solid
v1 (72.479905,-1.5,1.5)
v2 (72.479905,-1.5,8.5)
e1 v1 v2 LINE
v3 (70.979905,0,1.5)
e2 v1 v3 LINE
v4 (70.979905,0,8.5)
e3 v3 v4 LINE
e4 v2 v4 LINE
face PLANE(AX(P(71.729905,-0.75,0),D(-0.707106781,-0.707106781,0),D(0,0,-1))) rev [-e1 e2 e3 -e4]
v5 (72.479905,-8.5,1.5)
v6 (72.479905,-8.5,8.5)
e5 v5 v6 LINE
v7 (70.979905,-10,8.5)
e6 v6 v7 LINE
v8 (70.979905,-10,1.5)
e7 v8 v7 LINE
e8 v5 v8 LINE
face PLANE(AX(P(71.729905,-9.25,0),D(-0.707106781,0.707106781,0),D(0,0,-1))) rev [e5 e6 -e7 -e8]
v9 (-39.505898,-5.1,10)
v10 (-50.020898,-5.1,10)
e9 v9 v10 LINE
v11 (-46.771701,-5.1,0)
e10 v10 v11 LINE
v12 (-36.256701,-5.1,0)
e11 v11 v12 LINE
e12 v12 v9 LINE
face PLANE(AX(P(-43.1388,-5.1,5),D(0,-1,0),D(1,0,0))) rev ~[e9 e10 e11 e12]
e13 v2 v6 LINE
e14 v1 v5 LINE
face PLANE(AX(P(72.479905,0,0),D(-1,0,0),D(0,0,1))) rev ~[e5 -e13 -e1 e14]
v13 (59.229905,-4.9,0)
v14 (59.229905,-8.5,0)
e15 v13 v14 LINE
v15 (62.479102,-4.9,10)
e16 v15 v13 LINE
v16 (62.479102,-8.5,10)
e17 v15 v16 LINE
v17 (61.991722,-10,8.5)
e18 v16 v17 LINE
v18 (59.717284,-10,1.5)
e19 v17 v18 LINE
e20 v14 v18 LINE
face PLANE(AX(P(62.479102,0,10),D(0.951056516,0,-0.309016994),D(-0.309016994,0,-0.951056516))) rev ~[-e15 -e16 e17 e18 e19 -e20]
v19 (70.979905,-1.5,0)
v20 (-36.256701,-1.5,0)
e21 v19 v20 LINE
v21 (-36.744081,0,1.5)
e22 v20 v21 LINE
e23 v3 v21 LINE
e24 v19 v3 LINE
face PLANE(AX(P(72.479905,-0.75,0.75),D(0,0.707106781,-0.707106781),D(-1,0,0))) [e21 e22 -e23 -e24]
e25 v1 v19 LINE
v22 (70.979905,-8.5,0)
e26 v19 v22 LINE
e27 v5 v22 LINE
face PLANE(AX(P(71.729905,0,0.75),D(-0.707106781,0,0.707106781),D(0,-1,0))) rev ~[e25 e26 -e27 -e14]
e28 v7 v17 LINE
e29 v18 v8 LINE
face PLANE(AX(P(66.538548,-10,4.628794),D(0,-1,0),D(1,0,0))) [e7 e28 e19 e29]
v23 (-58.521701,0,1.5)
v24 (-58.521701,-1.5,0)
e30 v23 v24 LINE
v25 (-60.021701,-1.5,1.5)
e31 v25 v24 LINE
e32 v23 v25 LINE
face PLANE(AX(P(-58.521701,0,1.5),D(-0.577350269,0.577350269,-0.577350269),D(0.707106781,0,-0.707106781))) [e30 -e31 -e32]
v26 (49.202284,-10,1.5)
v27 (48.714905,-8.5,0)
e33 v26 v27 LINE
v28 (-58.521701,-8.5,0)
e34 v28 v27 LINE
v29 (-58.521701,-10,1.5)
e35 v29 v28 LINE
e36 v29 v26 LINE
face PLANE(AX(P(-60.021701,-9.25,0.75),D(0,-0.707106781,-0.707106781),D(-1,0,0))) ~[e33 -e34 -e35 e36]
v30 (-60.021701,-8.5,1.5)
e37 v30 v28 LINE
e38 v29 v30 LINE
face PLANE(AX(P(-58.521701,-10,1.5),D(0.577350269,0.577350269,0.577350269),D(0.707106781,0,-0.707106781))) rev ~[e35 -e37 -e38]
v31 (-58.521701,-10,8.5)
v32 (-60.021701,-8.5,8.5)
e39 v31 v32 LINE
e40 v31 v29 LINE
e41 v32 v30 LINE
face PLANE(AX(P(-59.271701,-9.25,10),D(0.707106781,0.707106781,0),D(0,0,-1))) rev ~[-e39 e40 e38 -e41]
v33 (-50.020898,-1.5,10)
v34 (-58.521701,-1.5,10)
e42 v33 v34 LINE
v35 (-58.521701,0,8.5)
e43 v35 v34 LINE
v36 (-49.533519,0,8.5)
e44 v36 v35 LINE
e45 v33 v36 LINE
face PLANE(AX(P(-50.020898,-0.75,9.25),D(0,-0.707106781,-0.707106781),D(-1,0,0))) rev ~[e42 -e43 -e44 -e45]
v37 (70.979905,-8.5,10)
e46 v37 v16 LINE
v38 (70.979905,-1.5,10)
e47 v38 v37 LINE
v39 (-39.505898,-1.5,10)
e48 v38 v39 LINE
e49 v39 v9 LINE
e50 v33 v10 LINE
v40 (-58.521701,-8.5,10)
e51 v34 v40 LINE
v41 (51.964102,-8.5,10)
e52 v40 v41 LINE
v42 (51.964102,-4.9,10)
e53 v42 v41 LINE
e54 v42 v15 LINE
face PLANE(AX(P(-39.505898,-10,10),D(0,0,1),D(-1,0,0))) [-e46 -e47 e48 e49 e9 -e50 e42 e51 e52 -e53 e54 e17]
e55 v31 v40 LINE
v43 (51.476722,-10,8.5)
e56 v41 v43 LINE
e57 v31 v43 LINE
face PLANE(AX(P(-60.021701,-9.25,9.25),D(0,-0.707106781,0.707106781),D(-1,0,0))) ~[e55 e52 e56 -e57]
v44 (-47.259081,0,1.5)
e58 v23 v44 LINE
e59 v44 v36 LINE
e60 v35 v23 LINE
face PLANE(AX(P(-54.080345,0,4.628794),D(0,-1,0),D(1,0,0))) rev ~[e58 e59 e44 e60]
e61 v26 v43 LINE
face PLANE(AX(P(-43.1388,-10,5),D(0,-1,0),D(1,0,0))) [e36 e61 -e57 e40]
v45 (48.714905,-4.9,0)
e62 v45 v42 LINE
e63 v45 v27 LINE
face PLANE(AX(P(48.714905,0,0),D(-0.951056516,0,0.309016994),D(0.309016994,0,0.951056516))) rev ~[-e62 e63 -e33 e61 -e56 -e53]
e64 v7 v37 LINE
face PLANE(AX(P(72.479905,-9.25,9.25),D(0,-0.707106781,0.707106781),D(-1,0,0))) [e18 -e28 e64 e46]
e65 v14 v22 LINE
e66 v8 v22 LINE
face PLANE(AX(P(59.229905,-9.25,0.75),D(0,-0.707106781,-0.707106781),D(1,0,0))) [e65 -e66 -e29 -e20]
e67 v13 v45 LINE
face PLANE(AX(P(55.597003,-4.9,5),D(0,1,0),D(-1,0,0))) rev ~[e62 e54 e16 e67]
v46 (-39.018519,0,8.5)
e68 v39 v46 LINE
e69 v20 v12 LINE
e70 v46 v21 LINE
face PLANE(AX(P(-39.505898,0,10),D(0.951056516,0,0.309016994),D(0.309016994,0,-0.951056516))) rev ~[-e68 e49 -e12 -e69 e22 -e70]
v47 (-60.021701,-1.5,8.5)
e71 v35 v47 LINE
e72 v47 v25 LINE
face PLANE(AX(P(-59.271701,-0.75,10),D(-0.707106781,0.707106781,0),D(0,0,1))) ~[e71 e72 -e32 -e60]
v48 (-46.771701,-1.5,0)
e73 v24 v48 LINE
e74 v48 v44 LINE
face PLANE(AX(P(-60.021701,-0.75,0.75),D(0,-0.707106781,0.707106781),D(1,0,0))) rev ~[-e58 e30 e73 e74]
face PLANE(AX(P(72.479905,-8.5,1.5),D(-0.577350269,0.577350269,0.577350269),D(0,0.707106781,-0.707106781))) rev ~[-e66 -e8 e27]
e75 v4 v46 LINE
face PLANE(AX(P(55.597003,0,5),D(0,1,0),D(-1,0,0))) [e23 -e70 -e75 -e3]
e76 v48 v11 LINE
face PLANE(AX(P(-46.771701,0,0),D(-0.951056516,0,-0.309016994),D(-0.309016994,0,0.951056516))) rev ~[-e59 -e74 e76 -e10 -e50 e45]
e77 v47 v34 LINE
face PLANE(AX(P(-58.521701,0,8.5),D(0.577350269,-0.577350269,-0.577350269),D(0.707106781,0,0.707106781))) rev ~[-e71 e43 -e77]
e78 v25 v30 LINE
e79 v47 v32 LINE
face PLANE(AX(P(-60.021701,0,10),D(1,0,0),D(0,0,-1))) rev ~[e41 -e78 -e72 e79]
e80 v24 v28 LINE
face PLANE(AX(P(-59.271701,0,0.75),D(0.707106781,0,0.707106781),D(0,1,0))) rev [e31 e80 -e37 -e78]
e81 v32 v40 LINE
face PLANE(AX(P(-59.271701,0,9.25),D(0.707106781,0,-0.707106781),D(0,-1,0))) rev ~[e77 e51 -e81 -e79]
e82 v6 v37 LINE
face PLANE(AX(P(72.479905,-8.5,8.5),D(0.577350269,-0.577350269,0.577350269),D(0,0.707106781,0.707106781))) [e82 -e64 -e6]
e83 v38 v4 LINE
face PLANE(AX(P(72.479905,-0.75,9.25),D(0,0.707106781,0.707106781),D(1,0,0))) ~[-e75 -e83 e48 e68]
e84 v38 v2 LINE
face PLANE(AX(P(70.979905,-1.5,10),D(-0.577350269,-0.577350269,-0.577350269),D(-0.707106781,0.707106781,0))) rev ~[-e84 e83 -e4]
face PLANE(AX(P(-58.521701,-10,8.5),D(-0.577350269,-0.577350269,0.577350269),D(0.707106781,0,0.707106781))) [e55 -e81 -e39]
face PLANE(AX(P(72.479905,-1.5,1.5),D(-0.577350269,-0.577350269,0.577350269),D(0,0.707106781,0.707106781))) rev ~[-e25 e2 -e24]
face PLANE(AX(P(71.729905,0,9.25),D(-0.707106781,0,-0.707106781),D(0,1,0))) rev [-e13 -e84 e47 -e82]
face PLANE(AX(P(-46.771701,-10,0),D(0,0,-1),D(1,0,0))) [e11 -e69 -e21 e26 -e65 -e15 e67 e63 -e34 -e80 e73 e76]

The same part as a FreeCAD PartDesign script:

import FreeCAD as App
import Part
import Sketcher

V = App.Vector
Q = App.Units.Quantity


def edges_at(feature, points):
    """Names of the edges that pass closest to the given points."""
    edges = feature.Shape.Edges
    near = lambda p: min(range(len(edges)), key=lambda i: edges[i].distToShape(Part.Vertex(*p))[0])
    return sorted({f"Edge{near(p) + 1}" for p in points})


def add_polygon(sketch, points):
    """Adds a closed chain of lines whose ends are joined by coincident constraints."""
    first, n = sketch.GeometryCount, len(points)
    for a, b in zip(points, points[1:] + points[:1]):
        sketch.addGeometry(Part.LineSegment(App.Vector(*a, 0), App.Vector(*b, 0)), False)
    for i in range(n):
        sketch.addConstraint(Sketcher.Constraint("Coincident", first + i, 2, first + (i + 1) % n, 1))

doc = App.newDocument("Part")
body = doc.addObject("PartDesign::Body", "Body")

sketch1 = body.newObject("Sketcher::SketchObject", "Sketch")
sketch1.AttachmentSupport = (doc.getObject("XZ_Plane"), [""])
sketch1.MapMode = "FlatFace"
add_polygon(sketch1, [(-60, 10), (-60, 0), (-47, 0), (-50, 10)])
sketch1.addConstraint([
    Sketcher.Constraint("Vertical", 0),
    Sketcher.Constraint("Horizontal", 1),
    Sketcher.Constraint("Horizontal", 3),
    Sketcher.Constraint("PointOnObject", 0, 2, -1),
    Sketcher.Constraint("DistanceY", 0, 2, 0, 1, Q("10 mm")),
    Sketcher.Constraint("Angle", 2, Q("108 deg")),
    Sketcher.Constraint("DistanceX", 1, 1, 1, 2, Q("13.25 mm")),
    Sketcher.Constraint("DistanceX", 0, 2, -1, 1, Q("60.021701 mm")),
])
pad1 = body.newObject("PartDesign::Pad", "Pad")
pad1.Profile = sketch1
pad1.Length = 10
body2 = doc.addObject("PartDesign::Body", "Body001")

sketch2 = body2.newObject("Sketcher::SketchObject", "Sketch001")
sketch2.AttachmentSupport = (doc.getObject("XZ_Plane001"), [""])
sketch2.MapMode = "FlatFace"
add_polygon(sketch2, [(-40, 10), (-36, 0), (49, 0), (52, 10)])
sketch2.addConstraint([
    Sketcher.Constraint("Horizontal", 1),
    Sketcher.Constraint("Horizontal", 3),
    Sketcher.Constraint("PointOnObject", 0, 2, -1),
    Sketcher.Constraint("Equal", 0, 2),
    Sketcher.Constraint("Angle", 0, Q("-72 deg")),
    Sketcher.Constraint("DistanceY", -1, 1, 2, 2, Q("10 mm")),
    Sketcher.Constraint("DistanceX", 3, 2, 3, 1, Q("91.47 mm")),
    Sketcher.Constraint("DistanceX", 0, 2, -1, 1, Q("36.256701 mm")),
])
pad2 = body2.newObject("PartDesign::Pad", "Pad001")
pad2.Profile = sketch2
pad2.Length = 10
body3 = doc.addObject("PartDesign::Body", "Body002")

sketch3 = body3.newObject("Sketcher::SketchObject", "Sketch002")
sketch3.AttachmentSupport = (doc.getObject("XZ_Plane002"), [""])
sketch3.MapMode = "FlatFace"
add_polygon(sketch3, [(62, 10), (59, 0), (72, 0), (72, 10)])
sketch3.addConstraint([
    Sketcher.Constraint("Horizontal", 1),
    Sketcher.Constraint("Vertical", 2),
    Sketcher.Constraint("Horizontal", 3),
    Sketcher.Constraint("PointOnObject", 0, 2, -1),
    Sketcher.Constraint("DistanceY", 2, 1, 2, 2, Q("10 mm")),
    Sketcher.Constraint("Angle", 0, Q("-108 deg")),
    Sketcher.Constraint("DistanceX", 1, 1, 1, 2, Q("13.25 mm")),
    Sketcher.Constraint("DistanceX", -1, 1, 3, 2, Q("62.479102 mm")),
])
pad3 = body3.newObject("PartDesign::Pad", "Pad002")
pad3.Profile = sketch3
pad3.Length = 10
body2.AllowCompound = True
doc.recompute()

boolean = body2.newObject("PartDesign::Boolean", "Boolean")
boolean.Type = "Fuse"
boolean.addObjects([body3])

sketch4 = body2.newObject("Sketcher::SketchObject", "Sketch003")
sketch4.AttachmentSupport = (doc.getObject("XZ_Plane001"), [""])
sketch4.MapMode = "FlatFace"
add_polygon(sketch4, [(52, 10), (62, 10), (59, 0), (49, 0)])
sketch4.addConstraint([
    Sketcher.Constraint("Horizontal", 0),
    Sketcher.Constraint("Horizontal", 2),
    Sketcher.Constraint("PointOnObject", 1, 2, -1),
    Sketcher.Constraint("Parallel", 1, 3),
    Sketcher.Constraint("Angle", 1, Q("-108 deg")),
    Sketcher.Constraint("DistanceY", -1, 1, 0, 2, Q("10 mm")),
    Sketcher.Constraint("DistanceX", 0, 1, 0, 2, Q("10.515 mm")),
    Sketcher.Constraint("DistanceX", -1, 1, 0, 2, Q("62.479102 mm")),
])
pad4 = body2.newObject("PartDesign::Pad", "Pad003")
pad4.Profile = sketch4
pad4.Length = 4.9
body.AllowCompound = True
doc.recompute()

boolean2 = body.newObject("PartDesign::Boolean", "Boolean001")
boolean2.Type = "Fuse"
boolean2.addObjects([body2])

sketch5 = body.newObject("Sketcher::SketchObject", "Sketch004")
sketch5.AttachmentSupport = (doc.getObject("XZ_Plane"), [""])
sketch5.MapMode = "FlatFace"
sketch5.AttachmentOffset = App.Placement(V(0, 0, 10), App.Rotation())
add_polygon(sketch5, [(-40, 10), (-50, 10), (-47, 0), (-36, 0)])
sketch5.addConstraint([
    Sketcher.Constraint("Horizontal", 0),
    Sketcher.Constraint("Horizontal", 2),
    Sketcher.Constraint("PointOnObject", 1, 2, -1),
    Sketcher.Constraint("Parallel", 1, 3),
    Sketcher.Constraint("Angle", 1, Q("-72 deg")),
    Sketcher.Constraint("DistanceY", -1, 1, 0, 2, Q("10 mm")),
    Sketcher.Constraint("DistanceX", 0, 2, 0, 1, Q("10.515 mm")),
    Sketcher.Constraint("DistanceX", 0, 2, -1, 1, Q("50.020898 mm")),
])
pad5 = body.newObject("PartDesign::Pad", "Pad004")
pad5.Profile = sketch5
pad5.Length = 4.9
pad5.Reversed = True
doc.recompute()

chamfer = body.newObject("PartDesign::Chamfer", "Chamfer")
chamfer.Base = (pad5, edges_at(pad5, [
    (-60.022, -5, 10),
    (-60.022, -5, 0),
    (-60.022, 0, 5),
    (-60.022, -10, 5),
    (-55.021, 0, 10),
    (-53.397, 0, 0),
    (-5.653, -10, 0),
    (-4.029, -10, 10),
    (18.112, 0, 0),
    (65.855, -10, 0),
    (67.48, -10, 10),
    (72.48, -10, 5),
    (72.48, -5, 0),
    (72.48, 0, 5),
    (72.48, -5, 10),
    (16.487, 0, 10),
]))
chamfer.Size = 1.5

doc.recompute()
